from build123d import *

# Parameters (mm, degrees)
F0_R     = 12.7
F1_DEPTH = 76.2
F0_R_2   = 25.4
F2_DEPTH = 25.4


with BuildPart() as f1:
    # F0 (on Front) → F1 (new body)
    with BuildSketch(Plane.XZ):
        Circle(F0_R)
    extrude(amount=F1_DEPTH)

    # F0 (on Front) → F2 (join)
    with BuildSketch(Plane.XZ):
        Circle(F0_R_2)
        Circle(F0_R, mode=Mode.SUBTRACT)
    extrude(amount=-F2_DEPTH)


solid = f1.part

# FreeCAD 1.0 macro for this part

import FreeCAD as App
import Part
import Sketcher

V = App.Vector
Q = App.Units.Quantity

doc = App.newDocument("Part")
body = doc.addObject("PartDesign::Body", "Body")
body.AllowCompound = True

sketch1 = doc.addObject("Sketcher::SketchObject", "Sketch")
body.addObject(sketch1)
sketch1.AttachmentSupport = (doc.XZ_Plane, [""])
sketch1.MapMode = "FlatFace"
sketch1.addGeometry(Part.Circle(V(0, 0, 0), V(0, 0, 1), 13), False)
sketch1.addConstraint(Sketcher.Constraint("Coincident", 0, 3, -1, 1))
sketch1.addConstraint(Sketcher.Constraint("Diameter", 0, Q("1 in")))
pad1 = doc.addObject("PartDesign::Pad", "Pad")
body.addObject(pad1)
pad1.Profile = sketch1
pad1.Length = Q("3 in")

sketch2 = doc.addObject("Sketcher::SketchObject", "Sketch001")
body.addObject(sketch2)
sketch2.AttachmentSupport = (doc.XZ_Plane, [""])
sketch2.MapMode = "FlatFace"
sketch2.addGeometry(Part.Circle(V(0, 0, 0), V(0, 0, 1), 25), False)
sketch2.addGeometry(Part.Circle(V(0, 0, 0), V(0, 0, 1), 13), False)
sketch2.addConstraint(Sketcher.Constraint("Coincident", 0, 3, -1, 1))
sketch2.addConstraint(Sketcher.Constraint("Coincident", 1, 3, -1, 1))
sketch2.addConstraint(Sketcher.Constraint("Diameter", 0, Q("2 in")))
sketch2.addConstraint(Sketcher.Constraint("Diameter", 1, Q("1 in")))
pad2 = doc.addObject("PartDesign::Pad", "Pad001")
body.addObject(pad2)
pad2.Profile = sketch2
pad2.Length = Q("1 in")
pad2.Reversed = True

doc.recompute()
